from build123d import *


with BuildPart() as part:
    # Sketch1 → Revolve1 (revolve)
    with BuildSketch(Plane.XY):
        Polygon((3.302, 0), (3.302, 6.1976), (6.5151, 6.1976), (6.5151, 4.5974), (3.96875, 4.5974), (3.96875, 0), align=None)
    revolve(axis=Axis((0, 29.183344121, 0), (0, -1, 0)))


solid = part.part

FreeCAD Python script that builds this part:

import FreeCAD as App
import Part
import Sketcher
from FreeCAD import Vector
Q = App.Units.Quantity

doc = App.newDocument("Part")
body = doc.addObject("PartDesign::Body", "Body")

# Sketch on XY plane
sketch1 = body.newObject("Sketcher::SketchObject", "Sketch")
sketch1.AttachmentSupport = (doc.getObject("XY_Plane"), [""])
sketch1.MapMode = "FlatFace"
sketch1.addGeometry([
    Part.LineSegment(Vector(3.3, 6.2, 0), Vector(3.3, 0, 0)),  # 0
    Part.LineSegment(Vector(3.3, 0, 0), Vector(4, 0, 0)),  # 1
    Part.LineSegment(Vector(4, 0, 0), Vector(4, 4.6, 0)),  # 2
    Part.LineSegment(Vector(4, 4.6, 0), Vector(6.5, 4.6, 0)),  # 3
    Part.LineSegment(Vector(6.5, 4.6, 0), Vector(6.5, 6.2, 0)),  # 4
    Part.LineSegment(Vector(6.5, 6.2, 0), Vector(3.3, 6.2, 0)),  # 5
], False)
sketch1.addConstraint([
    Sketcher.Constraint("Coincident", 0, 2, 1, 1),
    Sketcher.Constraint("Coincident", 1, 2, 2, 1),
    Sketcher.Constraint("Coincident", 2, 2, 3, 1),
    Sketcher.Constraint("Coincident", 3, 2, 4, 1),
    Sketcher.Constraint("Coincident", 4, 2, 5, 1),
    Sketcher.Constraint("Coincident", 5, 2, 0, 1),
    Sketcher.Constraint("Vertical", 0),
    Sketcher.Constraint("Horizontal", 1),
    Sketcher.Constraint("Vertical", 2),
    Sketcher.Constraint("Horizontal", 3),
    Sketcher.Constraint("Vertical", 4),
    Sketcher.Constraint("Horizontal", 5),
    Sketcher.Constraint("PointOnObject", 0, 2, -1),
    Sketcher.Constraint("DistanceY", 0, 2, 0, 1, Q("0.244 in")),
    Sketcher.Constraint("DistanceY", 2, 1, 2, 2, Q("0.181 in")),
    Sketcher.Constraint("DistanceX", -1, 1, 0, 2, Q("0.13 in")),
    Sketcher.Constraint("DistanceX", 5, 2, 5, 1, Q("0.1265 in")),
    Sketcher.Constraint("DistanceX", -1, 1, 1, 2, Q("0.15625 in")),
])
revolution = body.newObject("PartDesign::Revolution", "Revolution")
revolution.Profile = sketch1
revolution.ReferenceAxis = (sketch1, ["V_Axis"])
revolution.Angle = 360

doc.recompute()
